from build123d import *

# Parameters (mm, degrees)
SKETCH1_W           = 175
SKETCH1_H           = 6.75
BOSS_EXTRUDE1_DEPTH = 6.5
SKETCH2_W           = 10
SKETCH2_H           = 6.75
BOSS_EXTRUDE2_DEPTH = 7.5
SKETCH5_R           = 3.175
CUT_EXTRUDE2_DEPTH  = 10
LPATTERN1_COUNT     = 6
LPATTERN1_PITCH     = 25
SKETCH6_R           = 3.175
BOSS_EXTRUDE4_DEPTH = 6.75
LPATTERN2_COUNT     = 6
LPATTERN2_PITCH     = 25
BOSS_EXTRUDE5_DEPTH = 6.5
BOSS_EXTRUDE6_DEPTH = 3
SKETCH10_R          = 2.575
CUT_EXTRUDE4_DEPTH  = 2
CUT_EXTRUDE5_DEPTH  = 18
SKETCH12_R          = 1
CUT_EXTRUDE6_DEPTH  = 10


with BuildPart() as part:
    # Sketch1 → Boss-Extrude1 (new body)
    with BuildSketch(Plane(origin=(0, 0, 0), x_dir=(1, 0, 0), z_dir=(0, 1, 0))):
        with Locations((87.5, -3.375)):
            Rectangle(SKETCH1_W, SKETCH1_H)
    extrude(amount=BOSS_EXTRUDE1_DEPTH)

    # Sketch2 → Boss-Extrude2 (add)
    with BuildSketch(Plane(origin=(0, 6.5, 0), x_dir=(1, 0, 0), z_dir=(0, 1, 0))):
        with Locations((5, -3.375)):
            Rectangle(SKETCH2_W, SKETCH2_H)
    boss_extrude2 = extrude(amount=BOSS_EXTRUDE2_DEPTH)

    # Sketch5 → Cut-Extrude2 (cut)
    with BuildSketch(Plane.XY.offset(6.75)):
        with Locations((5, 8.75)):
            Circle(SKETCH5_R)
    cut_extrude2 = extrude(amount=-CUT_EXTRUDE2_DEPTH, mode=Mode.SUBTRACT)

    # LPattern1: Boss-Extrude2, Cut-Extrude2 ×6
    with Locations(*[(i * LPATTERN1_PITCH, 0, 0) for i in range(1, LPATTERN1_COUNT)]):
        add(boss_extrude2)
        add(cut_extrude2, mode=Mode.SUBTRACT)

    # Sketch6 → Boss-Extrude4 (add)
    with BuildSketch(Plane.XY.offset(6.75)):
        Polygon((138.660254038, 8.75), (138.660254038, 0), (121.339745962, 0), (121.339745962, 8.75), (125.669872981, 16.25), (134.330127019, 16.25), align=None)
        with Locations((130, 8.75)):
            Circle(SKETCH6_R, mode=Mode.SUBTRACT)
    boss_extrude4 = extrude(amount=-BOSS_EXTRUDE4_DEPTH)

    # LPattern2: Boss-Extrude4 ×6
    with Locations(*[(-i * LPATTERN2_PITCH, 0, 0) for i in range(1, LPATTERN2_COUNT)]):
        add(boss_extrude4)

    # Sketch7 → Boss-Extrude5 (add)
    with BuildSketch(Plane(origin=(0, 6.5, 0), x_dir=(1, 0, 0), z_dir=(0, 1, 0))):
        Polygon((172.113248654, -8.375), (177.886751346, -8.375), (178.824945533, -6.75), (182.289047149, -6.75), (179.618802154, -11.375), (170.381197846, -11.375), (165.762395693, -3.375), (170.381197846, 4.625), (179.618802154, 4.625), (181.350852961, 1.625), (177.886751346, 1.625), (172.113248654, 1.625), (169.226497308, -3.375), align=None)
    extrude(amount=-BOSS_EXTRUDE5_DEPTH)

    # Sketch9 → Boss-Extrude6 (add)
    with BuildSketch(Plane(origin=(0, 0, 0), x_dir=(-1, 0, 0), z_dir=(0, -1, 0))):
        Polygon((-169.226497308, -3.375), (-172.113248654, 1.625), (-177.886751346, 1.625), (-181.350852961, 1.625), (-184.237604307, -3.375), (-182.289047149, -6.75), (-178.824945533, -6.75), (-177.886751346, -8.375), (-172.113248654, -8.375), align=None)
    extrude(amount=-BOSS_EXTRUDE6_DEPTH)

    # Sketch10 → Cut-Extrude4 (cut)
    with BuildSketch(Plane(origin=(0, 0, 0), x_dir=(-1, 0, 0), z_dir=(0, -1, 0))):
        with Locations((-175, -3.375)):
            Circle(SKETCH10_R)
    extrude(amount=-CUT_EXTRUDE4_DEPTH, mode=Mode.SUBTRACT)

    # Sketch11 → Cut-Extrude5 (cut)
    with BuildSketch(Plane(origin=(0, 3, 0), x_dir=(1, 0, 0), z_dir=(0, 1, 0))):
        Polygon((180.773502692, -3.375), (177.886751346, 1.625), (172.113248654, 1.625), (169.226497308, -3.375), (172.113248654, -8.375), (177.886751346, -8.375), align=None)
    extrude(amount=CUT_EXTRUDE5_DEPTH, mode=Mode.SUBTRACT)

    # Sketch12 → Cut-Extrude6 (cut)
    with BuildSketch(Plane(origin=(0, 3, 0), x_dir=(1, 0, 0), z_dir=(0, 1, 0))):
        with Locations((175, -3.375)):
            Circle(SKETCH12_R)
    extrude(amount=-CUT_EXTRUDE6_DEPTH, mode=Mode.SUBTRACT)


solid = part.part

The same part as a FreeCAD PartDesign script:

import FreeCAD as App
import Part
import Sketcher
from FreeCAD import Vector
Q = App.Units.Quantity


def add_polygon(sketch, points):
    """Adds a closed chain of lines whose ends are joined by coincident constraints."""
    first, n = sketch.GeometryCount, len(points)
    for a, b in zip(points, points[1:] + points[:1]):
        sketch.addGeometry(Part.LineSegment(App.Vector(*a, 0), App.Vector(*b, 0)), False)
    for i in range(n):
        sketch.addConstraint(Sketcher.Constraint("Coincident", first + i, 2, first + (i + 1) % n, 1))

doc = App.newDocument("Part")
body = doc.addObject("PartDesign::Body", "Body")

sketch1 = body.newObject("Sketcher::SketchObject", "Sketch")
sketch1.AttachmentSupport = (doc.getObject("XZ_Plane"), [""])
sketch1.MapMode = "FlatFace"
add_polygon(sketch1, [(0, 0), (0, 7), (175, 7), (175, 0)])
sketch1.addConstraint(Sketcher.Constraint("Vertical", 0))
sketch1.addConstraint(Sketcher.Constraint("Horizontal", 1))
sketch1.addConstraint(Sketcher.Constraint("Vertical", 2))
sketch1.addConstraint(Sketcher.Constraint("Horizontal", 3))
sketch1.addConstraint(Sketcher.Constraint("Coincident", 3, 2, -1, 1))
sketch1.addConstraint(Sketcher.Constraint("DistanceX", 1, 1, 1, 2, 175.0))
sketch1.addConstraint(Sketcher.Constraint("DistanceY", 0, 1, 0, 2, 6.75))
pad1 = body.newObject("PartDesign::Pad", "Pad")
pad1.Profile = sketch1
pad1.Length = 6.5
pad1.Reversed = True

sketch2 = body.newObject("Sketcher::SketchObject", "Sketch001")
sketch2.AttachmentSupport = (doc.getObject("XZ_Plane"), [""])
sketch2.MapMode = "FlatFace"
sketch2.AttachmentOffset = App.Placement(Vector(0, 0, -6.5), App.Rotation())
add_polygon(sketch2, [(0, 0), (0, 7), (10, 7), (10, 0)])
sketch2.addConstraint(Sketcher.Constraint("Vertical", 0))
sketch2.addConstraint(Sketcher.Constraint("Horizontal", 1))
sketch2.addConstraint(Sketcher.Constraint("Vertical", 2))
sketch2.addConstraint(Sketcher.Constraint("Horizontal", 3))
sketch2.addConstraint(Sketcher.Constraint("Coincident", 3, 2, -1, 1))
sketch2.addConstraint(Sketcher.Constraint("DistanceX", 1, 1, 1, 2, 10.0))
sketch2.addConstraint(Sketcher.Constraint("DistanceY", 0, 1, 0, 2, 6.75))
pad2 = body.newObject("PartDesign::Pad", "Pad001")
pad2.Profile = sketch2
pad2.Length = 7.5
pad2.Reversed = True

sketch3 = body.newObject("Sketcher::SketchObject", "Sketch002")
sketch3.AttachmentSupport = (doc.getObject("XY_Plane"), [""])
sketch3.MapMode = "FlatFace"
sketch3.AttachmentOffset = App.Placement(Vector(0, 0, 6.75), App.Rotation())
sketch3.addGeometry(Part.Circle(Vector(5, 8.8, 0), Vector(0, 0, 1), 3.2), False)
sketch3.addConstraint(Sketcher.Constraint("Diameter", 0, 6.35))
sketch3.addConstraint(Sketcher.Constraint("DistanceX", -1, 1, 0, 3, 5.0))
sketch3.addConstraint(Sketcher.Constraint("DistanceY", -1, 1, 0, 3, 8.75))
pocket1 = body.newObject("PartDesign::Pocket", "Pocket")
pocket1.Profile = sketch3
pocket1.Length = 10
doc.recompute()

linearpattern = body.newObject("PartDesign::LinearPattern", "LinearPattern")
linearpattern.Originals = [pad2, pocket1]
linearpattern.Direction = (doc.getObject("X_Axis"), [""])
linearpattern.Mode = "offset"
linearpattern.Offset = 25
linearpattern.Occurrences = 6
body.Tip = linearpattern

sketch4 = body.newObject("Sketcher::SketchObject", "Sketch003")
sketch4.AttachmentSupport = (doc.getObject("XY_Plane"), [""])
sketch4.MapMode = "FlatFace"
sketch4.AttachmentOffset = App.Placement(Vector(0, 0, 6.75), App.Rotation())
add_polygon(sketch4, [(138.7, 0), (138.7, 8.8), (134.3, 16.2), (125.7, 16.2), (121.3, 8.8), (121.3, 0)])
sketch4.addGeometry(Part.Circle(Vector(130, 8.8, 0), Vector(0, 0, 1), 3.2), False)
sketch4.addConstraint(Sketcher.Constraint("Vertical", 0))
sketch4.addConstraint(Sketcher.Constraint("Horizontal", 2))
sketch4.addConstraint(Sketcher.Constraint("Vertical", 4))
sketch4.addConstraint(Sketcher.Constraint("Horizontal", 5))
sketch4.addConstraint(Sketcher.Constraint("PointOnObject", 4, 2, -1))
sketch4.addConstraint(Sketcher.Constraint("Horizontal", 6, 3, 0, 2))
sketch4.addConstraint(Sketcher.Constraint("Horizontal", 0, 2, 3, 2))
sketch4.addConstraint(Sketcher.Constraint("Equal", 1, 3))
sketch4.addConstraint(Sketcher.Constraint("Diameter", 6, 6.35))
sketch4.addConstraint(Sketcher.Constraint("Angle", 1, Q("120 deg")))
sketch4.addConstraint(Sketcher.Constraint("DistanceX", -1, 1, 6, 3, 130.0))
sketch4.addConstraint(Sketcher.Constraint("DistanceY", 0, 1, 0, 2, 8.75))
sketch4.addConstraint(Sketcher.Constraint("DistanceY", 6, 3, 1, 2, 7.5))
sketch4.addConstraint(Sketcher.Constraint("DistanceX", 5, 1, 5, 2, 17.320508))
sketch4.addConstraint(Sketcher.Constraint("DistanceX", -1, 1, 0, 2, 138.660254))
pad3 = body.newObject("PartDesign::Pad", "Pad002")
pad3.Profile = sketch4
pad3.Length = 6.75
pad3.Reversed = True
doc.recompute()

linearpattern2 = body.newObject("PartDesign::LinearPattern", "LinearPattern001")
linearpattern2.Originals = [pad3]
linearpattern2.Direction = (doc.getObject("X_Axis"), [""])
linearpattern2.Mode = "offset"
linearpattern2.Offset = 25
linearpattern2.Occurrences = 6
linearpattern2.Reversed = True
body.Tip = linearpattern2

sketch5 = body.newObject("Sketcher::SketchObject", "Sketch004")
sketch5.AttachmentSupport = (doc.getObject("XZ_Plane"), [""])
sketch5.MapMode = "FlatFace"
sketch5.AttachmentOffset = App.Placement(Vector(0, 0, -6.5), App.Rotation())
add_polygon(sketch5, [(177.9, 8.4), (172.1, 8.4), (169.2, 3.4), (172.1, -1.6), (181.4, -1.6), (179.6, -4.6), (170.4, -4.6), (165.8, 3.4), (170.4, 11.4), (179.6, 11.4), (182.3, 6.8), (178.8, 6.8)])
sketch5.addConstraint(Sketcher.Constraint("Horizontal", 0))
sketch5.addConstraint(Sketcher.Constraint("Horizontal", 3))
sketch5.addConstraint(Sketcher.Constraint("Horizontal", 5))
sketch5.addConstraint(Sketcher.Constraint("Horizontal", 8))
sketch5.addConstraint(Sketcher.Constraint("Horizontal", 10))
sketch5.addConstraint(Sketcher.Constraint("Parallel", 1, 4))
sketch5.addConstraint(Sketcher.Constraint("Parallel", 2, 6))
sketch5.addConstraint(Sketcher.Constraint("Parallel", 4, 7))
sketch5.addConstraint(Sketcher.Constraint("Parallel", 6, 9))
sketch5.addConstraint(Sketcher.Constraint("Parallel", 9, 11))
sketch5.addConstraint(Sketcher.Constraint("Horizontal", 1, 2, 6, 2))
sketch5.addConstraint(Sketcher.Constraint("Vertical", 0, 2, 2, 2))
sketch5.addConstraint(Sketcher.Constraint("Vertical", 5, 2, 7, 2))
sketch5.addConstraint(Sketcher.Constraint("Vertical", 4, 2, 8, 2))
sketch5.addConstraint(Sketcher.Constraint("Equal", 3, 5))
sketch5.addConstraint(Sketcher.Constraint("Equal", 1, 2))
sketch5.addConstraint(Sketcher.Constraint("Angle", 1, Q("-120 deg")))
sketch5.addConstraint(Sketcher.Constraint("DistanceY", 1, 2, 0, 2, 5.0))
sketch5.addConstraint(Sketcher.Constraint("DistanceY", 4, 2, 3, 2, 3.0))
sketch5.addConstraint(Sketcher.Constraint("DistanceY", -1, 1, 9, 2, 6.75))
sketch5.addConstraint(Sketcher.Constraint("DistanceX", 10, 2, 10, 1, 3.464102))
sketch5.addConstraint(Sketcher.Constraint("DistanceY", -1, 1, 0, 2, 8.375))
sketch5.addConstraint(Sketcher.Constraint("DistanceX", 0, 2, 9, 2, 10.175798))
sketch5.addConstraint(Sketcher.Constraint("DistanceX", -1, 1, 0, 2, 172.113249))
pad4 = body.newObject("PartDesign::Pad", "Pad003")
pad4.Profile = sketch5
pad4.Length = 6.5

sketch6 = body.newObject("Sketcher::SketchObject", "Sketch005")
sketch6.AttachmentSupport = (doc.getObject("XZ_Plane"), [""])
sketch6.MapMode = "FlatFace"
add_polygon(sketch6, [(169.2, 3.4), (172.1, -1.6), (181.4, -1.6), (184.2, 3.4), (182.3, 6.8), (178.8, 6.8), (177.9, 8.4), (172.1, 8.4)])
sketch6.addConstraint(Sketcher.Constraint("Horizontal", 1))
sketch6.addConstraint(Sketcher.Constraint("Horizontal", 4))
sketch6.addConstraint(Sketcher.Constraint("Horizontal", 6))
sketch6.addConstraint(Sketcher.Constraint("Parallel", 0, 3))
sketch6.addConstraint(Sketcher.Constraint("Parallel", 3, 5))
sketch6.addConstraint(Sketcher.Constraint("Parallel", 2, 7))
sketch6.addConstraint(Sketcher.Constraint("Horizontal", 2, 2, 7, 2))
sketch6.addConstraint(Sketcher.Constraint("Vertical", 0, 2, 6, 2))
sketch6.addConstraint(Sketcher.Constraint("Equal", 0, 2))
sketch6.addConstraint(Sketcher.Constraint("Angle", 0, Q("-60 deg")))
sketch6.addConstraint(Sketcher.Constraint("DistanceY", 1, 2, 2, 2, 5.0))
sketch6.addConstraint(Sketcher.Constraint("DistanceY", -1, 1, 3, 2, 6.75))
sketch6.addConstraint(Sketcher.Constraint("DistanceX", 4, 2, 4, 1, 3.464102))
sketch6.addConstraint(Sketcher.Constraint("DistanceY", 0, 2, -1, 1, 1.625))
sketch6.addConstraint(Sketcher.Constraint("DistanceX", 0, 2, 3, 2, 10.175798))
sketch6.addConstraint(Sketcher.Constraint("DistanceX", -1, 1, 0, 2, 172.113249))
pad5 = body.newObject("PartDesign::Pad", "Pad004")
pad5.Profile = sketch6
pad5.Length = 3
pad5.Reversed = True

sketch7 = body.newObject("Sketcher::SketchObject", "Sketch006")
sketch7.AttachmentSupport = (doc.getObject("XZ_Plane"), [""])
sketch7.MapMode = "FlatFace"
sketch7.addGeometry(Part.Circle(Vector(175, 3.4, 0), Vector(0, 0, 1), 2.6), False)
sketch7.addConstraint(Sketcher.Constraint("Diameter", 0, 5.15))
sketch7.addConstraint(Sketcher.Constraint("DistanceX", -1, 1, 0, 3, 175.0))
sketch7.addConstraint(Sketcher.Constraint("DistanceY", -1, 1, 0, 3, 3.375))
pocket2 = body.newObject("PartDesign::Pocket", "Pocket001")
pocket2.Profile = sketch7
pocket2.Length = 2

sketch8 = body.newObject("Sketcher::SketchObject", "Sketch007")
sketch8.AttachmentSupport = (doc.getObject("XZ_Plane"), [""])
sketch8.MapMode = "FlatFace"
sketch8.AttachmentOffset = App.Placement(Vector(0, 0, -3), App.Rotation())
add_polygon(sketch8, [(181, 3), (178, -2), (172, -2), (169, 3), (172, 8), (178, 8)])
sketch8.addConstraint(Sketcher.Constraint("Horizontal", 1))
sketch8.addConstraint(Sketcher.Constraint("Horizontal", 4))
sketch8.addConstraint(Sketcher.Constraint("Parallel", 0, 3))
sketch8.addConstraint(Sketcher.Constraint("Parallel", 2, 5))
sketch8.addConstraint(Sketcher.Constraint("Horizontal", 2, 2, 5, 2))
sketch8.addConstraint(Sketcher.Constraint("Vertical", 1, 2, 3, 2))
sketch8.addConstraint(Sketcher.Constraint("Vertical", 0, 2, 4, 2))
sketch8.addConstraint(Sketcher.Constraint("Angle", 0, Q("-120 deg")))
sketch8.addConstraint(Sketcher.Constraint("DistanceY", 1, 2, 2, 2, 5.0))
sketch8.addConstraint(Sketcher.Constraint("DistanceY", 0, 2, -1, 1, 1.625))
sketch8.addConstraint(Sketcher.Constraint("DistanceX", 1, 2, 1, 1, 5.773503))
sketch8.addConstraint(Sketcher.Constraint("DistanceX", -1, 1, 0, 2, 177.886751))
pocket3 = body.newObject("PartDesign::Pocket", "Pocket002")
pocket3.Profile = sketch8
pocket3.Length = 18

sketch9 = body.newObject("Sketcher::SketchObject", "Sketch008")
sketch9.AttachmentSupport = (doc.getObject("XZ_Plane"), [""])
sketch9.MapMode = "FlatFace"
sketch9.AttachmentOffset = App.Placement(Vector(0, 0, -3), App.Rotation())
sketch9.addGeometry(Part.Circle(Vector(175, 3.4, 0), Vector(0, 0, 1), 1), False)
sketch9.addConstraint(Sketcher.Constraint("Diameter", 0, 2.0))
sketch9.addConstraint(Sketcher.Constraint("DistanceX", -1, 1, 0, 3, 175.0))
sketch9.addConstraint(Sketcher.Constraint("DistanceY", -1, 1, 0, 3, 3.375))
pocket4 = body.newObject("PartDesign::Pocket", "Pocket003")
pocket4.Profile = sketch9
pocket4.Length = 10
pocket4.Reversed = True

doc.recompute()
